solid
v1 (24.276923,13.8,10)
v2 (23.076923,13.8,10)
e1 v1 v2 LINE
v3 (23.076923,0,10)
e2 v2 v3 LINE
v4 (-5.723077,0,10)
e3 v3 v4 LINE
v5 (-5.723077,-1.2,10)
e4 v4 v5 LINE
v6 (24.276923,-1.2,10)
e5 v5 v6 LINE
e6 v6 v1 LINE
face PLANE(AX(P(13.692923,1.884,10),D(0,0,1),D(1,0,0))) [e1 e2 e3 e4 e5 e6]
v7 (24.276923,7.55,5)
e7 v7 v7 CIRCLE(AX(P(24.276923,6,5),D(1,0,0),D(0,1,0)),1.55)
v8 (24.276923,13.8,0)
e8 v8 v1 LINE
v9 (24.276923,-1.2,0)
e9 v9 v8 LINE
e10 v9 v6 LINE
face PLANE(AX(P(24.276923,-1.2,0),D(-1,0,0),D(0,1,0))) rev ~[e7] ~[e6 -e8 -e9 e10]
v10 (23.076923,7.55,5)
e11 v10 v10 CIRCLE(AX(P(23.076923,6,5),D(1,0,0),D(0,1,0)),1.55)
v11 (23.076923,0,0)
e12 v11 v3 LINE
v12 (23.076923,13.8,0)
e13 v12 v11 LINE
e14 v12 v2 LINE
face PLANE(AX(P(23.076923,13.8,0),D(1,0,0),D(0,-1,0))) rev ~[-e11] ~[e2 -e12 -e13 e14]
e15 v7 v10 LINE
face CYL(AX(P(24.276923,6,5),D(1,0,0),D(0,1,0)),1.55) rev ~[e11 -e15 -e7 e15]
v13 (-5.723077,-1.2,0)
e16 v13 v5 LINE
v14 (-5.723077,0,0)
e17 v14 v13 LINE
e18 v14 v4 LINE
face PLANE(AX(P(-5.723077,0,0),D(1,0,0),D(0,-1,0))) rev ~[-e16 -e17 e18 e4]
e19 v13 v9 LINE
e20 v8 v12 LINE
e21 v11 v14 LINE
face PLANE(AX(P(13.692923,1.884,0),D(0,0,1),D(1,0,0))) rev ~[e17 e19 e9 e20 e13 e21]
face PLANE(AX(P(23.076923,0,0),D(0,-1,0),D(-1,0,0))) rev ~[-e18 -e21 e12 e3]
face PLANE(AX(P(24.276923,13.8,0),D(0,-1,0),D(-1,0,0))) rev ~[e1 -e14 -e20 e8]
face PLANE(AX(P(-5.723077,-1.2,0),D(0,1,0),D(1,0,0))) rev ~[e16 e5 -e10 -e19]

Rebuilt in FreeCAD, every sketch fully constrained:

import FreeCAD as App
import Part
import Sketcher
from FreeCAD import Vector

doc = App.newDocument("Part")
body = doc.addObject("PartDesign::Body", "Body")

# Sketch on XY plane
sketch1 = body.newObject("Sketcher::SketchObject", "Sketch")
sketch1.AttachmentSupport = (doc.getObject("XY_Plane"), [""])
sketch1.MapMode = "FlatFace"
sketch1.addGeometry([
    Part.LineSegment(Vector(23.076923, 0, 0), Vector(-5.723077, 0, 0)),  # 0
    Part.LineSegment(Vector(-5.723077, 0, 0), Vector(-5.723077, -1.2, 0)),  # 1
    Part.LineSegment(Vector(-5.723077, -1.2, 0), Vector(24.276923, -1.2, 0)),  # 2
    Part.LineSegment(Vector(24.276923, -1.2, 0), Vector(24.276923, 13.8, 0)),  # 3
    Part.LineSegment(Vector(24.276923, 13.8, 0), Vector(23.076923, 13.8, 0)),  # 4
    Part.LineSegment(Vector(23.076923, 13.8, 0), Vector(23.076923, 0, 0)),  # 5
], False)
sketch1.addConstraint([
    Sketcher.Constraint("Coincident", 0, 2, 1, 1),
    Sketcher.Constraint("Coincident", 1, 2, 2, 1),
    Sketcher.Constraint("Coincident", 2, 2, 3, 1),
    Sketcher.Constraint("Coincident", 3, 2, 4, 1),
    Sketcher.Constraint("Coincident", 4, 2, 5, 1),
    Sketcher.Constraint("Coincident", 5, 2, 0, 1),
    Sketcher.Constraint("Horizontal", 0),
    Sketcher.Constraint("Vertical", 1),
    Sketcher.Constraint("Horizontal", 2),
    Sketcher.Constraint("Vertical", 3),
    Sketcher.Constraint("Horizontal", 4),
    Sketcher.Constraint("Vertical", 5),
    Sketcher.Constraint("PointOnObject", 0, 2, -1),
    Sketcher.Constraint("Equal", 4, 1),
    Sketcher.Constraint("DistanceX", 2, 1, 2, 2, 30.0),
    Sketcher.Constraint("DistanceY", 3, 1, 3, 2, 15.0),
    Sketcher.Constraint("DistanceX", 0, 2, 0, 1, 28.8),
    Sketcher.Constraint("DistanceX", 0, 2, -1, 1, 5.723077),
])
pad1 = body.newObject("PartDesign::Pad", "Pad")
pad1.Profile = sketch1
pad1.Length = 10

# Sketch on YZ plane
sketch2 = body.newObject("Sketcher::SketchObject", "Sketch001")
sketch2.AttachmentSupport = (doc.getObject("YZ_Plane"), [""])
sketch2.MapMode = "FlatFace"
sketch2.AttachmentOffset = App.Placement(Vector(0, 0, 24.276923), App.Rotation())
sketch2.addGeometry(Part.Circle(Vector(6, 5, 0), Vector(0, 0, 1), 1.55), False)
sketch2.addConstraint([
    Sketcher.Constraint("Diameter", 0, 3.1),
    Sketcher.Constraint("DistanceX", -1, 1, 0, 3, 6.0),
    Sketcher.Constraint("DistanceY", -1, 1, 0, 3, 5.0),
])
pocket1 = body.newObject("PartDesign::Pocket", "Pocket")
pocket1.Profile = sketch2
pocket1.Length = 1.2

doc.recompute()
